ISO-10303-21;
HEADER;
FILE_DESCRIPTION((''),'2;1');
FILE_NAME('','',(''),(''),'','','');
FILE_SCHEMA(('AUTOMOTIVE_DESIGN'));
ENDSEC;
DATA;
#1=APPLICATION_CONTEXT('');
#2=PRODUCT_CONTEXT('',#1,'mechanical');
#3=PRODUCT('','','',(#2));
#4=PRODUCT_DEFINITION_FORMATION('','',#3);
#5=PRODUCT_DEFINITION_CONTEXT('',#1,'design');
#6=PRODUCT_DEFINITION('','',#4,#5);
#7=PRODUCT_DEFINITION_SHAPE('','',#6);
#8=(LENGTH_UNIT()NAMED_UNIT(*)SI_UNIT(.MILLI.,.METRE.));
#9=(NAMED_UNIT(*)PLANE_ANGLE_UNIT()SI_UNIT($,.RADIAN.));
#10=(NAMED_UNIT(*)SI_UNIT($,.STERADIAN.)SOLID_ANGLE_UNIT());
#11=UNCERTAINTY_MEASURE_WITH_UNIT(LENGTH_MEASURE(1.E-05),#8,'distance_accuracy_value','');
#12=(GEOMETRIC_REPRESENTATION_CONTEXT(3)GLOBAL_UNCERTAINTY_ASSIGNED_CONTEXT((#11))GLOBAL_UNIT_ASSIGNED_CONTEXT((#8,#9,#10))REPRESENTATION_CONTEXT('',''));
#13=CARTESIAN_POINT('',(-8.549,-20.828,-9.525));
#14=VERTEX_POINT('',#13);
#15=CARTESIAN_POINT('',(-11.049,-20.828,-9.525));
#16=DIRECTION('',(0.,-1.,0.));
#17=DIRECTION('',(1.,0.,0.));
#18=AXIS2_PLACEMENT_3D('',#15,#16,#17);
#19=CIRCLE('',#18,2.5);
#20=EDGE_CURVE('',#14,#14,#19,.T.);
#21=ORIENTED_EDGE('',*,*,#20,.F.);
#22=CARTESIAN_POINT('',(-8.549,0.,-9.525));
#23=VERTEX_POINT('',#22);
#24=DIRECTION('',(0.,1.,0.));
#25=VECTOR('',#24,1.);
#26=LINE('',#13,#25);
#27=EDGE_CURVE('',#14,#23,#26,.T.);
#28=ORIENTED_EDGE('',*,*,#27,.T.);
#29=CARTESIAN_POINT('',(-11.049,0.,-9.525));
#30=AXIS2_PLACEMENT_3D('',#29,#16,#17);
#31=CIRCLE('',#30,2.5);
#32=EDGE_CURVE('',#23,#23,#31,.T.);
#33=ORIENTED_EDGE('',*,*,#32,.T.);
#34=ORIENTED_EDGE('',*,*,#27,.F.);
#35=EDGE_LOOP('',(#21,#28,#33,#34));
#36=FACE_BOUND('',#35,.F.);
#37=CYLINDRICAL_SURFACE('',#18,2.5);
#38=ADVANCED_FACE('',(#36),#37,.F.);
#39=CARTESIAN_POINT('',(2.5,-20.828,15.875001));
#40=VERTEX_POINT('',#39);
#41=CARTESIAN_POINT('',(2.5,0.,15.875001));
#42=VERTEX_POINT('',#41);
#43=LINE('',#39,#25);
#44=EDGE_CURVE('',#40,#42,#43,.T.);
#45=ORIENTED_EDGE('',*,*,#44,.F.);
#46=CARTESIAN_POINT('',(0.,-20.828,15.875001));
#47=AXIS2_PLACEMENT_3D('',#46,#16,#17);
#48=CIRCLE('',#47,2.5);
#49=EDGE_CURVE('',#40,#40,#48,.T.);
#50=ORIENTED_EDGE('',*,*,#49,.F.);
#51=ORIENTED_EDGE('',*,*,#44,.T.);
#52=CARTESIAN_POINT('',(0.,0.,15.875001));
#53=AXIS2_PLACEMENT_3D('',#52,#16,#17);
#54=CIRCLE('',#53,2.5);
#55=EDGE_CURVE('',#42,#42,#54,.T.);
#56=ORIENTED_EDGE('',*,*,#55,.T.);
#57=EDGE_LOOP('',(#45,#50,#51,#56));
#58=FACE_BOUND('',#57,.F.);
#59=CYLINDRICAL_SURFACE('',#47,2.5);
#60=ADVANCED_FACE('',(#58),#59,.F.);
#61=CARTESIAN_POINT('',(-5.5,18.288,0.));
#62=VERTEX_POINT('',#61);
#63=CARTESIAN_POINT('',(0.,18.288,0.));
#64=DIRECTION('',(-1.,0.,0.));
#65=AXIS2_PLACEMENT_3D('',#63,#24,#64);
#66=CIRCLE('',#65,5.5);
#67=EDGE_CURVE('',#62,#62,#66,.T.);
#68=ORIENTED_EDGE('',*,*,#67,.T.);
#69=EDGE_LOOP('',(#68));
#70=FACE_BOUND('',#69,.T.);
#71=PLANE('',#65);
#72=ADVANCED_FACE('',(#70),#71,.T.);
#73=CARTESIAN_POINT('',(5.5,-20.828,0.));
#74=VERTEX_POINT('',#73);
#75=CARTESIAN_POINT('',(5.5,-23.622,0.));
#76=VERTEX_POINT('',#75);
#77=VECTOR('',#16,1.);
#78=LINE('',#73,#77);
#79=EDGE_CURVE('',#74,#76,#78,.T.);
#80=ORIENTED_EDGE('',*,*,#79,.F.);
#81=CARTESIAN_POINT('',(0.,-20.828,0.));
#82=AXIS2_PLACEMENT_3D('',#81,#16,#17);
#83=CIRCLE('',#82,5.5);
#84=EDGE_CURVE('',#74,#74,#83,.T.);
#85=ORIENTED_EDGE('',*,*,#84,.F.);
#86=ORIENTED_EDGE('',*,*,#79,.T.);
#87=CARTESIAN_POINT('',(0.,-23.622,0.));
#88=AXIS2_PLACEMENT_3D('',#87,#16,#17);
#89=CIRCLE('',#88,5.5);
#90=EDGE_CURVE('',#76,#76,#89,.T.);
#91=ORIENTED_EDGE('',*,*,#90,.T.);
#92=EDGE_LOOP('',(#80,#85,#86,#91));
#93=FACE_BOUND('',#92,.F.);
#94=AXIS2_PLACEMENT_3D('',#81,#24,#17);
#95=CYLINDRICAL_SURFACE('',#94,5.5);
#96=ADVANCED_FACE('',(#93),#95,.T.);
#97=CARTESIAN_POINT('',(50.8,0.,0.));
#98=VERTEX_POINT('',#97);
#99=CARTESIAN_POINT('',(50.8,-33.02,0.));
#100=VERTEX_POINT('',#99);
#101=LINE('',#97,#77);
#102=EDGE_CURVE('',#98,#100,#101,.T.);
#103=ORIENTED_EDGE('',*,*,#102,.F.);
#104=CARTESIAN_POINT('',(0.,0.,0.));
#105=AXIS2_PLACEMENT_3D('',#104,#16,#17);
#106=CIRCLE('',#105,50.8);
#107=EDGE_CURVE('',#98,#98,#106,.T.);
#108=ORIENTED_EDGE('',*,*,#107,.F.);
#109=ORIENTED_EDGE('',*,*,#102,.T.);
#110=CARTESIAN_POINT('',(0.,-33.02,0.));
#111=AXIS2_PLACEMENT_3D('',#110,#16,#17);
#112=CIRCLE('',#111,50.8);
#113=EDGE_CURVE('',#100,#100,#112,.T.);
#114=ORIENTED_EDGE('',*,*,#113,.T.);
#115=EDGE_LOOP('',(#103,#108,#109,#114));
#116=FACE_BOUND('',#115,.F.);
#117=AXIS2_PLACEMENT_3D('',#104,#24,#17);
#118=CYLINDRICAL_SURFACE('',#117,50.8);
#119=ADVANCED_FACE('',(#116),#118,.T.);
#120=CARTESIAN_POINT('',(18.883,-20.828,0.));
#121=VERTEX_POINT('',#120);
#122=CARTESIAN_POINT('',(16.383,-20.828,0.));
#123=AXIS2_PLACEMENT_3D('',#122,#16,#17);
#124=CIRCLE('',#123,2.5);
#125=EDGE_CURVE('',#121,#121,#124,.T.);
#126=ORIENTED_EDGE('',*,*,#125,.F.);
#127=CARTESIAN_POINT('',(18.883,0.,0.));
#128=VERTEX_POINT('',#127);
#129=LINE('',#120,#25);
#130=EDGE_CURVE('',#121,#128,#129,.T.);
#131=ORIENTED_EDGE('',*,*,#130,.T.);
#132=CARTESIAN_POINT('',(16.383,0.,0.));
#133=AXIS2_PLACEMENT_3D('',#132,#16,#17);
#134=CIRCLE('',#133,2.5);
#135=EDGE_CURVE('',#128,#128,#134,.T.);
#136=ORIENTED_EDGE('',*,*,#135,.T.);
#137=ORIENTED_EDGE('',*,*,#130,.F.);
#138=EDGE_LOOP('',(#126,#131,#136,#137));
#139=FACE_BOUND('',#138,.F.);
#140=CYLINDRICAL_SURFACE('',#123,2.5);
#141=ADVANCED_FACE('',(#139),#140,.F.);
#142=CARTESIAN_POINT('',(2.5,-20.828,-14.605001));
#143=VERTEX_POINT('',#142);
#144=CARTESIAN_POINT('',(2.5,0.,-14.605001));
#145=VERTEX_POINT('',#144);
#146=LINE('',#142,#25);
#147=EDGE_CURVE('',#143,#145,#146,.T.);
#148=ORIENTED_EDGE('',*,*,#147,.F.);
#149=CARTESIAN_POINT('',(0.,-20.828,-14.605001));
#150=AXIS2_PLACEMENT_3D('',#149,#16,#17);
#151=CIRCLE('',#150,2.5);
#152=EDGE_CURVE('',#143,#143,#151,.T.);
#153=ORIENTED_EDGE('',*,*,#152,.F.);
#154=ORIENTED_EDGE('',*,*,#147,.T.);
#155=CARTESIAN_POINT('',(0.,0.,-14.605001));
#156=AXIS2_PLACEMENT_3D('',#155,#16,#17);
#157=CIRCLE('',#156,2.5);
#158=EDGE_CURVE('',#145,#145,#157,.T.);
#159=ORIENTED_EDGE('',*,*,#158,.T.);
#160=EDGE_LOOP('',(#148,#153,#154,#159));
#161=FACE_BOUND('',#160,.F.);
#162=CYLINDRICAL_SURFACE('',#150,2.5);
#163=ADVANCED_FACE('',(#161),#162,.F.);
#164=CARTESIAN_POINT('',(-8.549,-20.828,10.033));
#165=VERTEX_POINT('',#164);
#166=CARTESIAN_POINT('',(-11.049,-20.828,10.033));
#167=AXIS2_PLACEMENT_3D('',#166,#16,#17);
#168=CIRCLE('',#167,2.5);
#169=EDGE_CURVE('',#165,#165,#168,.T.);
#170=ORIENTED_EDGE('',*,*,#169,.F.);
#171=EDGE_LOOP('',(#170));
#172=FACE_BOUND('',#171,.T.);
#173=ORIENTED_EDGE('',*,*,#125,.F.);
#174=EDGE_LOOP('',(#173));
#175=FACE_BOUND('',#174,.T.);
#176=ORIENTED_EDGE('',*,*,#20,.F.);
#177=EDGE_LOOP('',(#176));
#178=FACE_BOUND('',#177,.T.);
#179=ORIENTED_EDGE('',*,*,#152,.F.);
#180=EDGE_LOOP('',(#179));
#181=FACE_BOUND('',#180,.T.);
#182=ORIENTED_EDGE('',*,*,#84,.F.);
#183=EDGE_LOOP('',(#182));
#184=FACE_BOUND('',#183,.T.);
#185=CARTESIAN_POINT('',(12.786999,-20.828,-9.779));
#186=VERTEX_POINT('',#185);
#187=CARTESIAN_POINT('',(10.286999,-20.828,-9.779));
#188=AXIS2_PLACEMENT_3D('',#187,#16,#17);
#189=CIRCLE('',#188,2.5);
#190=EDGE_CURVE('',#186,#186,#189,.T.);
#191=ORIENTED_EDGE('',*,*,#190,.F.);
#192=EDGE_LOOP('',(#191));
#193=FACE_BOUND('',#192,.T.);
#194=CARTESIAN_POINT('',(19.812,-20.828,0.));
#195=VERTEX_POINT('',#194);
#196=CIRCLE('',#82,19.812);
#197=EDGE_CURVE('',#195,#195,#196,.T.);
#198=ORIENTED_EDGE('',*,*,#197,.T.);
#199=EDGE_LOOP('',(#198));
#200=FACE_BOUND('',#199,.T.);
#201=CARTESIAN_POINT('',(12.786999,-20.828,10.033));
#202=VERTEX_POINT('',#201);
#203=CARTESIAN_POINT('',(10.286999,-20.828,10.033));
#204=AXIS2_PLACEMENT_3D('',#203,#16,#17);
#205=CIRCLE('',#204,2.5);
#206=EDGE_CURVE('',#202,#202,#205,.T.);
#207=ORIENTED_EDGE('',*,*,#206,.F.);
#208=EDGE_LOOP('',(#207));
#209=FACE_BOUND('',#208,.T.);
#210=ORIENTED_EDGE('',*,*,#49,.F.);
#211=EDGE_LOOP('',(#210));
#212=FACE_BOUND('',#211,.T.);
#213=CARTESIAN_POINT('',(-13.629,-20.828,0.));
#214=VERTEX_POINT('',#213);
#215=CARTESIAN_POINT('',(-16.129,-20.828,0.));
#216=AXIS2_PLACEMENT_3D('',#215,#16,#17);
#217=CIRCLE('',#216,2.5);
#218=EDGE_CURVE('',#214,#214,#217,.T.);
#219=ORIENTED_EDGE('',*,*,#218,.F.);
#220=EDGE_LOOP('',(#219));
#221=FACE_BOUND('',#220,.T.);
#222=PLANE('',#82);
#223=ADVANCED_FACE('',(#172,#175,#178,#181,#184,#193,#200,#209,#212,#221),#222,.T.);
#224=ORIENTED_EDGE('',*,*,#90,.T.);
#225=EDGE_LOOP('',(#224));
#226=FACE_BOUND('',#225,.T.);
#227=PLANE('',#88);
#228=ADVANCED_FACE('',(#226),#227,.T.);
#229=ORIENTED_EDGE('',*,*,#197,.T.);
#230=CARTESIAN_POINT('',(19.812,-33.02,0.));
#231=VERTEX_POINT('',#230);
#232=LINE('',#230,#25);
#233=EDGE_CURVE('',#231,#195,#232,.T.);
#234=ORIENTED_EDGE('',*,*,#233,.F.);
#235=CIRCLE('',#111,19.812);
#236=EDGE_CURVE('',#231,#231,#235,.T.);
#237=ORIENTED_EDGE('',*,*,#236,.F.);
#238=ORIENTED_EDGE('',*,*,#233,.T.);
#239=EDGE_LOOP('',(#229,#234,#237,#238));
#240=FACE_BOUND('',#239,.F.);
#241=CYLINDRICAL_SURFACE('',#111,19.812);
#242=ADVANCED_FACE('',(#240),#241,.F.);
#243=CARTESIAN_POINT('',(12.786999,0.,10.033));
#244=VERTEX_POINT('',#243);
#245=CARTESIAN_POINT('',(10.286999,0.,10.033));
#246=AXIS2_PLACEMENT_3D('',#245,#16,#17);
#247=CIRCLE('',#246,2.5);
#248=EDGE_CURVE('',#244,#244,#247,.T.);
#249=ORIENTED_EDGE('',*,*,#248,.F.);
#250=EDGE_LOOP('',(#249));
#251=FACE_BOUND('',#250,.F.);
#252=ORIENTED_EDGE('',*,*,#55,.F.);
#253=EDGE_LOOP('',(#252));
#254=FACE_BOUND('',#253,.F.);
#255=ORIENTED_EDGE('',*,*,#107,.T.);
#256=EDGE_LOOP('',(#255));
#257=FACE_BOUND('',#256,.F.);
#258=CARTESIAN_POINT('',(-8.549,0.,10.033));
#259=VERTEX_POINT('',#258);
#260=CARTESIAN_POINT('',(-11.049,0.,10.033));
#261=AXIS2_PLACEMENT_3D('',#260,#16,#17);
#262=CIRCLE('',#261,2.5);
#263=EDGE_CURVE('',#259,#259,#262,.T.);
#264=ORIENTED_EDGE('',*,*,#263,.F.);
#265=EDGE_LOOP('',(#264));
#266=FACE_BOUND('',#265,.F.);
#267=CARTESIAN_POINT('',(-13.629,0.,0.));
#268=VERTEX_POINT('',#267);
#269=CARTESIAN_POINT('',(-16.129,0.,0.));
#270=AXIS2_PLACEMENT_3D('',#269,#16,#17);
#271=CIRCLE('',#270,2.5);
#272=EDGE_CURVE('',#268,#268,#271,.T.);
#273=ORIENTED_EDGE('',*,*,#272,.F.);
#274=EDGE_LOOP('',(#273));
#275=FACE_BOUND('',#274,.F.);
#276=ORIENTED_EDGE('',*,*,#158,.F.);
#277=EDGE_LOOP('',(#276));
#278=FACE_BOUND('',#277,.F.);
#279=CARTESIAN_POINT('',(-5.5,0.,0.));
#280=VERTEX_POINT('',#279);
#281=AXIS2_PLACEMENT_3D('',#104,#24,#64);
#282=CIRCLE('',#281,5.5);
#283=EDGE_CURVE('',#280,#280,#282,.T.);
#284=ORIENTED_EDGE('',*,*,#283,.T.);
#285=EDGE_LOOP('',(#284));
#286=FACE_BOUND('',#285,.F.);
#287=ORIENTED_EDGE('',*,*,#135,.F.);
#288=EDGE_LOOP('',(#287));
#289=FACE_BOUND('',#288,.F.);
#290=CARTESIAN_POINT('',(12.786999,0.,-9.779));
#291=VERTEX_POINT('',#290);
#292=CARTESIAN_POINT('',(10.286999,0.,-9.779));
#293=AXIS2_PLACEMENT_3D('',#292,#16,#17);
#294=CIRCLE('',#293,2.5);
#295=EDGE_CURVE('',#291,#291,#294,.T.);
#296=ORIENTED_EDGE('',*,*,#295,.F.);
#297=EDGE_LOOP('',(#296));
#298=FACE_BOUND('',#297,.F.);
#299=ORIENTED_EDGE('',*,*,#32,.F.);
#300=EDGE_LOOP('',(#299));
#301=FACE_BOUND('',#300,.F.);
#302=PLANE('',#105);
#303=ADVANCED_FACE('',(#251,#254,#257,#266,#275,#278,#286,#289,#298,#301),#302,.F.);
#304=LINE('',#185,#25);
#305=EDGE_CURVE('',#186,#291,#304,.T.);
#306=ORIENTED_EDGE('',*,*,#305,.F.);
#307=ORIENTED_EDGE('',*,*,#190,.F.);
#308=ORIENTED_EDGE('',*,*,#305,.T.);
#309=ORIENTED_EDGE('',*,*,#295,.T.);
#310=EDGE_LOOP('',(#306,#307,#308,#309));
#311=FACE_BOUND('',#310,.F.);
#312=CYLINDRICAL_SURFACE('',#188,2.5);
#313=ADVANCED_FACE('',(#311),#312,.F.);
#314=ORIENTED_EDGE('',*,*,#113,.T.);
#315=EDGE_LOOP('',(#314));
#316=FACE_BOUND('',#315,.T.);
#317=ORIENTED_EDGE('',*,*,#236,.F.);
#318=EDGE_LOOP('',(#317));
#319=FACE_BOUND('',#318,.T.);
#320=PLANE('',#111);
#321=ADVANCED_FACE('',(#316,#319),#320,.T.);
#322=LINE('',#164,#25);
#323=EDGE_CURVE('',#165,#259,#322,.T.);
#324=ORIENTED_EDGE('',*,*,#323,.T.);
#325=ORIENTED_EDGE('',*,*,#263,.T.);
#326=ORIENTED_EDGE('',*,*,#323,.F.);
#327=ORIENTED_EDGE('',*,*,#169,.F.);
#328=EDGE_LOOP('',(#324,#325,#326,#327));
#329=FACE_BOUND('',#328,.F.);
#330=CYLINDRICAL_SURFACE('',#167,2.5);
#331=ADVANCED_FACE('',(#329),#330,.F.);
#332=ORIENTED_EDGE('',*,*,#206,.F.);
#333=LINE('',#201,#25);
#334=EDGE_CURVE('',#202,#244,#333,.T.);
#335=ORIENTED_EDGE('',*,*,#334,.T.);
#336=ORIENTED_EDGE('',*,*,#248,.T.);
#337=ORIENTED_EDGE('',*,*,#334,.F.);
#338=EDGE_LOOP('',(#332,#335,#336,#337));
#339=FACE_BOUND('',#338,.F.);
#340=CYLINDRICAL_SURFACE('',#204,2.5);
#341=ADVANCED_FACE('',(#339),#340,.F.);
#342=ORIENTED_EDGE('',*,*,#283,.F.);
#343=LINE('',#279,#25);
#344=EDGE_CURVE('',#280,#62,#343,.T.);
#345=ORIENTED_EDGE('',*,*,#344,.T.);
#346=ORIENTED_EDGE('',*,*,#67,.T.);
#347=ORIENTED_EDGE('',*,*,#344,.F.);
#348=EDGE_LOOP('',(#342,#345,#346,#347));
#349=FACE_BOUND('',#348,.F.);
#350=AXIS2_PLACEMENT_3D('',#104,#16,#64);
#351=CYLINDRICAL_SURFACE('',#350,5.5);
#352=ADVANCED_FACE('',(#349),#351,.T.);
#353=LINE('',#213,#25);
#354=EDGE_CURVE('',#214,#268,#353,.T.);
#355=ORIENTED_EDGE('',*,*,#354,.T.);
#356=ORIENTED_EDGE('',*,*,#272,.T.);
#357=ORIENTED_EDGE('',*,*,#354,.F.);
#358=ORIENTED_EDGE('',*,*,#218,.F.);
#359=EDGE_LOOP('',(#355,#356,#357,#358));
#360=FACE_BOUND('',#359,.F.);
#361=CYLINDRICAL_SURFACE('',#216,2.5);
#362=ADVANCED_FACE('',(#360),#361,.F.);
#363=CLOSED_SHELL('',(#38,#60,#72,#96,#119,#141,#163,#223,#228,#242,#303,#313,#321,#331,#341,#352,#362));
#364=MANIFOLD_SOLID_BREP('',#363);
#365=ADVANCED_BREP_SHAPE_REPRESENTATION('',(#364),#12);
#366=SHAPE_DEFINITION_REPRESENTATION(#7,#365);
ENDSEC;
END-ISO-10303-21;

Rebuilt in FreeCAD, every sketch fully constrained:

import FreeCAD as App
import Part
import Sketcher

V = App.Vector
Q = App.Units.Quantity

doc = App.newDocument("Part")
body = doc.addObject("PartDesign::Body", "Body")

# Sketch on XZ plane
sketch1 = doc.addObject("Sketcher::SketchObject", "Sketch")
body.addObject(sketch1)
sketch1.AttachmentSupport = (doc.XZ_Plane, [""])
sketch1.MapMode = "FlatFace"
sketch1.addGeometry(Part.Circle(V(0, 0, 0), V(0, 0, 1), 50.8), False)
sketch1.addConstraint([
    Sketcher.Constraint("Coincident", 0, 3, -1, 1),
    Sketcher.Constraint("Diameter", 0, Q("4 in")),
])
pad1 = doc.addObject("PartDesign::Pad", "Pad")
body.addObject(pad1)
pad1.Profile = sketch1
pad1.Length = Q("1.3 in")

# Sketch on XZ plane
sketch2 = doc.addObject("Sketcher::SketchObject", "Sketch001")
body.addObject(sketch2)
sketch2.AttachmentSupport = (doc.XZ_Plane, [""])
sketch2.MapMode = "FlatFace"
sketch2.AttachmentOffset = App.Placement(V(0, 0, 1.3 * 25.4), App.Rotation())
sketch2.addGeometry(Part.Circle(V(0, 0, 0), V(0, 0, 1), 19.812), False)
sketch2.addConstraint([
    Sketcher.Constraint("Coincident", 0, 3, -1, 1),
    Sketcher.Constraint("Diameter", 0, Q("1.56 in")),
])
pocket1 = doc.addObject("PartDesign::Pocket", "Pocket")
body.addObject(pocket1)
pocket1.Profile = sketch2
pocket1.Length = Q("0.48 in")

# Sketch on XZ plane
sketch3 = doc.addObject("Sketcher::SketchObject", "Sketch002")
body.addObject(sketch3)
sketch3.AttachmentSupport = (doc.XZ_Plane, [""])
sketch3.MapMode = "FlatFace"
sketch3.AttachmentOffset = App.Placement(V(0, 0, 0.82 * 25.4), App.Rotation())
sketch3.addGeometry(Part.Circle(V(0, 0, 0), V(0, 0, 1), 5.5), False)
sketch3.addConstraint([
    Sketcher.Constraint("Coincident", 0, 3, -1, 1),
    Sketcher.Constraint("Diameter", 0, 11.0),
])
pad2 = doc.addObject("PartDesign::Pad", "Pad001")
body.addObject(pad2)
pad2.Profile = sketch3
pad2.Length = Q("0.11 in")

# Sketch on XZ plane
sketch4 = doc.addObject("Sketcher::SketchObject", "Sketch003")
body.addObject(sketch4)
sketch4.AttachmentSupport = (doc.XZ_Plane, [""])
sketch4.MapMode = "FlatFace"
sketch4.AttachmentOffset = App.Placement(V(0, 0, 0.82 * 25.4), App.Rotation())
sketch4.addGeometry([
    Part.Circle(V(0, 15.875001, 0), V(0, 0, 1), 2.5),  # 0
    Part.Circle(V(-11.049, 10.033, 0), V(0, 0, 1), 2.5),  # 1
    Part.Circle(V(-16.129, 0, 0), V(0, 0, 1), 2.5),  # 2
    Part.Circle(V(-11.049, -9.525, 0), V(0, 0, 1), 2.5),  # 3
    Part.Circle(V(0, -14.605001, 0), V(0, 0, 1), 2.5),  # 4
    Part.Circle(V(10.286999, -9.779, 0), V(0, 0, 1), 2.5),  # 5
    Part.Circle(V(16.383, 0, 0), V(0, 0, 1), 2.5),  # 6
    Part.Circle(V(10.286999, 10.033, 0), V(0, 0, 1), 2.5),  # 7
], False)
sketch4.addConstraint([
    Sketcher.Constraint("Equal", 0, 1),
    Sketcher.Constraint("Equal", 1, 2),
    Sketcher.Constraint("Equal", 2, 3),
    Sketcher.Constraint("Equal", 3, 4),
    Sketcher.Constraint("Equal", 4, 5),
    Sketcher.Constraint("Equal", 5, 6),
    Sketcher.Constraint("Equal", 6, 7),
    Sketcher.Constraint("PointOnObject", 0, 3, -2),
    Sketcher.Constraint("PointOnObject", 2, 3, -1),
    Sketcher.Constraint("PointOnObject", 4, 3, -2),
    Sketcher.Constraint("PointOnObject", 6, 3, -1),
    Sketcher.Constraint("Horizontal", 1, 3, 7, 3),
    Sketcher.Constraint("Vertical", 1, 3, 3, 3),
    Sketcher.Constraint("Vertical", 5, 3, 7, 3),
    Sketcher.Constraint("DistanceY", 3, 3, 0, 3, Q("1 in")),
    Sketcher.Constraint("DistanceX", 2, 3, 1, 3, Q("0.2 in")),
    Sketcher.Constraint("DistanceY", 4, 3, 3, 3, Q("0.2 in")),
    Sketcher.Constraint("Diameter", 0, 5.0),
    Sketcher.Constraint("DistanceY", 1, 3, 0, 3, Q("0.23 in")),
    Sketcher.Constraint("DistanceY", 4, 3, 5, 3, Q("0.19 in")),
    Sketcher.Constraint("DistanceX", 3, 3, 5, 3, Q("0.8399999 in")),
    Sketcher.Constraint("DistanceX", 5, 3, 6, 3, Q("0.24 in")),
    Sketcher.Constraint("DistanceY", -1, 1, 0, 3, Q("0.625 in")),
    Sketcher.Constraint("DistanceX", 1, 3, -1, 1, Q("0.435 in")),
])
pocket2 = doc.addObject("PartDesign::Pocket", "Pocket001")
body.addObject(pocket2)
pocket2.Profile = sketch4
pocket2.Length = Q("1 in")

# Sketch on XZ plane
sketch5 = doc.addObject("Sketcher::SketchObject", "Sketch004")
body.addObject(sketch5)
sketch5.AttachmentSupport = (doc.XZ_Plane, [""])
sketch5.MapMode = "FlatFace"
sketch5.addGeometry(Part.Circle(V(0, 0, 0), V(0, 0, 1), 5.5), False)
sketch5.addConstraint([
    Sketcher.Constraint("Coincident", 0, 3, -1, 1),
    Sketcher.Constraint("Diameter", 0, 11.0),
])
pad3 = doc.addObject("PartDesign::Pad", "Pad002")
body.addObject(pad3)
pad3.Profile = sketch5
pad3.Length = Q("0.72 in")
pad3.Reversed = True

doc.recompute()
